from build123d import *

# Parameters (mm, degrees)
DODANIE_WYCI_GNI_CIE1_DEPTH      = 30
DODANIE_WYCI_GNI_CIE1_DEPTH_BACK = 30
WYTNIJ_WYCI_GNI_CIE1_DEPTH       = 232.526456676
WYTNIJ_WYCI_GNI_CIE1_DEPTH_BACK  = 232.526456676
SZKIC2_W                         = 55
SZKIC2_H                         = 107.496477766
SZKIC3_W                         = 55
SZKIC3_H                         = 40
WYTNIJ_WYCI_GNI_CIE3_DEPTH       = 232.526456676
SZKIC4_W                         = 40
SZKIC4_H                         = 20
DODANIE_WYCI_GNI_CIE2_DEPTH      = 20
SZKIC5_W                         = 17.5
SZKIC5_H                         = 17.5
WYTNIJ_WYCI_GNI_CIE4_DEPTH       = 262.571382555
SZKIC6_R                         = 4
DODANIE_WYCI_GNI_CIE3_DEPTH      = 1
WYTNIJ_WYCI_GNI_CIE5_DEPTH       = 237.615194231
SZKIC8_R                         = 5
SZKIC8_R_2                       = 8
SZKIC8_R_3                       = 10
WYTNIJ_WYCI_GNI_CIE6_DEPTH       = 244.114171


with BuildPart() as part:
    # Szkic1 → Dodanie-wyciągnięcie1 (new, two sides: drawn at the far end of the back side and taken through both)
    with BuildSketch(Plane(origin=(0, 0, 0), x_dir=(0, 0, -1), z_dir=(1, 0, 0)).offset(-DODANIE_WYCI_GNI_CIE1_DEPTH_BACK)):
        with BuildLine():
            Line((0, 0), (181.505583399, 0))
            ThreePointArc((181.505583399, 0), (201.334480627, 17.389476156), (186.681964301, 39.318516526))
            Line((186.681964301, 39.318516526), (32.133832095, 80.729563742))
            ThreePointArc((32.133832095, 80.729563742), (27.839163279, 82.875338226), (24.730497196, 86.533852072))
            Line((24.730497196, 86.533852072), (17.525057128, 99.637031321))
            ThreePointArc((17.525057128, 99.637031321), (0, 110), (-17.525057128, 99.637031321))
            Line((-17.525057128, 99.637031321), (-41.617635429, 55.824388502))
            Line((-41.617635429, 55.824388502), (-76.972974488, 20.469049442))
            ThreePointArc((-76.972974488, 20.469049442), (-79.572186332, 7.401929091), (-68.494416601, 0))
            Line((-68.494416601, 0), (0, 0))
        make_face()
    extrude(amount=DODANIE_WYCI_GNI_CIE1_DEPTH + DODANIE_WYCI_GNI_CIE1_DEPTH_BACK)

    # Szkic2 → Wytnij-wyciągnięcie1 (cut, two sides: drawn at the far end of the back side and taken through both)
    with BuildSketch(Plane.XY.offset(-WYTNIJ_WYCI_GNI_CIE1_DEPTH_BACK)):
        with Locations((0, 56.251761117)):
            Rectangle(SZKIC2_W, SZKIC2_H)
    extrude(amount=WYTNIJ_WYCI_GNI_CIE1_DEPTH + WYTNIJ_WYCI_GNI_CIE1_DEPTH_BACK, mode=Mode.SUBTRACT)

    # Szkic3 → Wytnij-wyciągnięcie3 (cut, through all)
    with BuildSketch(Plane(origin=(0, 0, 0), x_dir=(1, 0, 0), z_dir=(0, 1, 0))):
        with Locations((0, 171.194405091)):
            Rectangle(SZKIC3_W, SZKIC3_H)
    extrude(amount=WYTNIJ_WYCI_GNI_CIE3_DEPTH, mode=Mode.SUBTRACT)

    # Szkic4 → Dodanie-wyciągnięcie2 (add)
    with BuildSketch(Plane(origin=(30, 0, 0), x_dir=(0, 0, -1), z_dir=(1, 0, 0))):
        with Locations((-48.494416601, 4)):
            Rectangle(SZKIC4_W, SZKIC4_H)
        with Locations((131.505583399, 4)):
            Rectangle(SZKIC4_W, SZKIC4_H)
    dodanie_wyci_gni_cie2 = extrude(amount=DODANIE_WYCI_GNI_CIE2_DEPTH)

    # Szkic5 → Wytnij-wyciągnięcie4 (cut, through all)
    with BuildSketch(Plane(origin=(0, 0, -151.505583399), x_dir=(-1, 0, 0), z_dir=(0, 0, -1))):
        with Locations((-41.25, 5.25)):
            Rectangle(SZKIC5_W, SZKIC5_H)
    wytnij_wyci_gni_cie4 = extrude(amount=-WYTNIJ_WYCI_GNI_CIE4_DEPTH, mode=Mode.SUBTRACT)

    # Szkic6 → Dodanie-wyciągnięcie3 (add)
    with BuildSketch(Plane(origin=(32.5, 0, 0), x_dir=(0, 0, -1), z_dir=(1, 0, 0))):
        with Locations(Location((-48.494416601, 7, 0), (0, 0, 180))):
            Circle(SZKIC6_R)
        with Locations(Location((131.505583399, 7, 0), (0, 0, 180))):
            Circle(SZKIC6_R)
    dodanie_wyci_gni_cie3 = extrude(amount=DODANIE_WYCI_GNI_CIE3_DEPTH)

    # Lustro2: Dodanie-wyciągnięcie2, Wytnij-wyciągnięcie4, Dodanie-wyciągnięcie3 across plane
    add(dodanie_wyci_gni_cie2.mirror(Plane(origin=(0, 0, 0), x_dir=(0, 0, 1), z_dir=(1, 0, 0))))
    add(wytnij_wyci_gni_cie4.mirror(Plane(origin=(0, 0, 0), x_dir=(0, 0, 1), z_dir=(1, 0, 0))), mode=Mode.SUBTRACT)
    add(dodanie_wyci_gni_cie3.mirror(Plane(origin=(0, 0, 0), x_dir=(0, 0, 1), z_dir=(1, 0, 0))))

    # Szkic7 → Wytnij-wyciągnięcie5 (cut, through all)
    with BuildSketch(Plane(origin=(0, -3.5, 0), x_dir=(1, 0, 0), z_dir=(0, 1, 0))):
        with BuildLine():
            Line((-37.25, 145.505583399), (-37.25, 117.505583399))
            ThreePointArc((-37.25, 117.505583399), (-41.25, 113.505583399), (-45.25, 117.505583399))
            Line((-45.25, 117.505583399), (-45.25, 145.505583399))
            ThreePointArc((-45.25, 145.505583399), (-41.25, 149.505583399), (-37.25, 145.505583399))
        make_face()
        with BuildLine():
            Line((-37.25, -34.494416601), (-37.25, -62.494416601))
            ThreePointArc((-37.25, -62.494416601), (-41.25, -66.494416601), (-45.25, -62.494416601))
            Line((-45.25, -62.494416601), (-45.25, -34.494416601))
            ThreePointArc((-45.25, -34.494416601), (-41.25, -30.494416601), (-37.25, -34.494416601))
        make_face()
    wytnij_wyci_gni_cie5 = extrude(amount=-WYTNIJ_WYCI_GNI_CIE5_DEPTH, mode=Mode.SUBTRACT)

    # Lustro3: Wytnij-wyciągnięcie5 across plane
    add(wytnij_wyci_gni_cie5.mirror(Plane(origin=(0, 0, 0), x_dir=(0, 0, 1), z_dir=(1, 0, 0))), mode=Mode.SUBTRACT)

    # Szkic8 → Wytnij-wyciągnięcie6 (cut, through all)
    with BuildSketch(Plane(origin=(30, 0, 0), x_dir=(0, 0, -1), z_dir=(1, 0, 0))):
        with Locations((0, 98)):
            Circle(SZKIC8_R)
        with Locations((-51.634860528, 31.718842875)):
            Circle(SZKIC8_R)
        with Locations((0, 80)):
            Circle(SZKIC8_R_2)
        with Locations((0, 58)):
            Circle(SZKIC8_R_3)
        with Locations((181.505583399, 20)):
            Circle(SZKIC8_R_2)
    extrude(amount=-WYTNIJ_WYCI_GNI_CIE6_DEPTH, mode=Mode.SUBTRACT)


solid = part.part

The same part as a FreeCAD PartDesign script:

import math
import FreeCAD as App
import Part
import Sketcher
from FreeCAD import Vector
Q = App.Units.Quantity


def add_polygon(sketch, points):
    """Adds a closed chain of lines whose ends are joined by coincident constraints."""
    first, n = sketch.GeometryCount, len(points)
    for a, b in zip(points, points[1:] + points[:1]):
        sketch.addGeometry(Part.LineSegment(App.Vector(*a, 0), App.Vector(*b, 0)), False)
    for i in range(n):
        sketch.addConstraint(Sketcher.Constraint("Coincident", first + i, 2, first + (i + 1) % n, 1))

doc = App.newDocument("Part")
params = doc.addObject("Spreadsheet::Sheet", "Params")
for row, (alias, value) in enumerate([
    ("sketch1_radius", "20 mm"),
    ("sketch1_height", "250 mm"),
    ("sketch1_length", "160 mm"),
    ("sketch1_length2", "50 mm"),
    ("pad1_length", "30 mm"),
    ("pad1_length2", "30 mm"),
    ("sketch2_width", "55 mm"),
    ("sketch3_width", "55 mm"),
    ("sketch3_height", "40 mm"),
    ("sketch4_width", "20 mm"),
    ("sketch4_height", "40 mm"),
    ("pad2_length", "20 mm"),
    ("sketch5_width", "17.5 mm"),
    ("sketch6_diameter", "8 mm"),
    ("pad3_length", "1 mm"),
    ("sketch7_radius", "4 mm"),
    ("sketch7_height", "28 mm"),
    ("sketch8_diameter", "10 mm"),
    ("sketch8_diameter2", "16 mm"),
    ("sketch8_diameter3", "20 mm"),
], start=1):
    params.set(f"A{row}", alias)
    params.set(f"B{row}", "=" + value)
    params.setAlias(f"B{row}", alias)

body = doc.addObject("PartDesign::Body", "Body")

# Sketch on YZ plane
sketch1 = body.newObject("Sketcher::SketchObject", "Sketch")
sketch1.AttachmentSupport = (doc.getObject("YZ_Plane"), [""])
sketch1.MapMode = "FlatFace"
sketch1.addGeometry([
    Part.ArcOfCircle(Part.Circle(Vector(20, -182, 0), Vector(0, 0, 1), 20), math.radians(180), math.radians(345)),  # 0
    Part.LineSegment(Vector(39, -187, 0), Vector(81, -32, 0)),  # 1
    Part.ArcOfCircle(Part.Circle(Vector(92, -35, 0), Vector(0, 0, 1), 12), math.radians(119), math.radians(165)),  # 2
    Part.LineSegment(Vector(87, -25, 0), Vector(100, -18, 0)),  # 3
    Part.ArcOfCircle(Part.Circle(Vector(90, 0, 0), Vector(0, 0, 1), 20), math.radians(-61), math.radians(61)),  # 4
    Part.LineSegment(Vector(100, 18, 0), Vector(56, 42, 0)),  # 5
    Part.LineSegment(Vector(56, 42, 0), Vector(20, 77, 0)),  # 6
    Part.ArcOfCircle(Part.Circle(Vector(12, 68, 0), Vector(0, 0, 1), 12), math.radians(45), math.radians(180)),  # 7
    Part.LineSegment(Vector(0, 68, 0), Vector(0, -182, 0)),  # 8
], False)
sketch1.addConstraint([
    Sketcher.Constraint("Tangent", 0, 2, 1, 1),
    Sketcher.Constraint("Tangent", 1, 2, 2, 2),
    Sketcher.Constraint("Tangent", 2, 1, 3, 1),
    Sketcher.Constraint("Tangent", 3, 2, 4, 1),
    Sketcher.Constraint("Tangent", 4, 2, 5, 1),
    Sketcher.Constraint("Coincident", 5, 2, 6, 1),
    Sketcher.Constraint("Tangent", 6, 2, 7, 1),
    Sketcher.Constraint("Tangent", 7, 2, 8, 1),
    Sketcher.Constraint("Tangent", 8, 2, 0, 1),
    Sketcher.Constraint("Vertical", 8),
    Sketcher.Constraint("Equal", 0, 4),
    Sketcher.Constraint("Equal", 2, 7),
    Sketcher.Constraint("Symmetric", 3, 2, 4, 2, -1),
    Sketcher.Constraint("PointOnObject", 7, 2, -2),
    Sketcher.Constraint("Equal", 5, 6),
    Sketcher.Constraint("Radius", 0, 20.0),
    Sketcher.Constraint("DistanceY", 8, 2, 8, 1, 250.0),
    Sketcher.Constraint("Angle", 1, Q("75 deg")),
    Sketcher.Constraint("Angle", 6, Q("135 deg")),
    Sketcher.Constraint("Distance", 1, 160.0),
    Sketcher.Constraint("Distance", 5, 50.0),
    Sketcher.Constraint("DistanceX", -1, 1, 4, 3, 90.0),
])
sketch1.setExpression("Constraints[15]", "Params.sketch1_radius")
sketch1.setExpression("Constraints[16]", "Params.sketch1_height")
sketch1.setExpression("Constraints[19]", "Params.sketch1_length")
sketch1.setExpression("Constraints[20]", "Params.sketch1_length2")
pad1 = body.newObject("PartDesign::Pad", "Pad")
pad1.Profile = sketch1
pad1.Type = "TwoLengths"
pad1.setExpression("Length", "Params.pad1_length")
pad1.setExpression("Length2", "Params.pad1_length2")

# Sketch on XY plane
sketch2 = body.newObject("Sketcher::SketchObject", "Sketch001")
sketch2.AttachmentSupport = (doc.getObject("XY_Plane"), [""])
sketch2.MapMode = "FlatFace"
add_polygon(sketch2, [(-28, 110), (-28, 3), (28, 3), (28, 110)])  # lines 0-3
sketch2.addConstraint([
    Sketcher.Constraint("Vertical", 0),
    Sketcher.Constraint("Horizontal", 1),
    Sketcher.Constraint("Vertical", 2),
    Sketcher.Constraint("Horizontal", 3),
    Sketcher.Constraint("DistanceX", 1, 1, 1, 2, 55.0),
    Sketcher.Constraint("DistanceY", -1, 1, 2, 2, 110.0),
    Sketcher.Constraint("DistanceX", 0, 2, -1, 1, 27.5),
    Sketcher.Constraint("DistanceY", 0, 2, 0, 1, 107.496478),
])
sketch2.setExpression("Constraints[8]", "Params.sketch2_width")
pocket1 = body.newObject("PartDesign::Pocket", "Pocket")
pocket1.Profile = sketch2
pocket1.Type = "ThroughAll"
pocket1.Midplane = True

# Sketch on XZ plane
sketch3 = body.newObject("Sketcher::SketchObject", "Sketch002")
sketch3.AttachmentSupport = (doc.getObject("XZ_Plane"), [""])
sketch3.MapMode = "FlatFace"
add_polygon(sketch3, [(-28, -191), (-28, -151), (28, -151), (28, -191)])  # lines 0-3
sketch3.addConstraint([
    Sketcher.Constraint("Vertical", 0),
    Sketcher.Constraint("Horizontal", 1),
    Sketcher.Constraint("Vertical", 2),
    Sketcher.Constraint("Horizontal", 3),
    Sketcher.Constraint("DistanceX", 1, 1, 1, 2, 55.0),
    Sketcher.Constraint("DistanceY", 0, 1, 0, 2, 40.0),
    Sketcher.Constraint("DistanceX", 0, 2, -1, 1, 27.5),
    Sketcher.Constraint("DistanceY", 0, 2, -1, 1, 151.194405),
])
sketch3.setExpression("Constraints[8]", "Params.sketch3_width")
sketch3.setExpression("Constraints[9]", "Params.sketch3_height")
pocket2 = body.newObject("PartDesign::Pocket", "Pocket001")
pocket2.Profile = sketch3
pocket2.Type = "ThroughAll"

# Sketch on YZ plane
sketch4 = body.newObject("Sketcher::SketchObject", "Sketch003")
sketch4.AttachmentSupport = (doc.getObject("YZ_Plane"), [""])
sketch4.MapMode = "FlatFace"
sketch4.AttachmentOffset = App.Placement(Vector(0, 0, 30), App.Rotation())
add_polygon(sketch4, [(14, 68), (-6, 68), (-6, 28), (14, 28)])  # lines 0-3
add_polygon(sketch4, [(14, -112), (-6, -112), (-6, -152), (14, -152)])  # lines 4-7
sketch4.addConstraint([
    Sketcher.Constraint("Horizontal", 0),
    Sketcher.Constraint("Vertical", 1),
    Sketcher.Constraint("Horizontal", 2),
    Sketcher.Constraint("Vertical", 3),
    Sketcher.Constraint("Horizontal", 4),
    Sketcher.Constraint("Vertical", 5),
    Sketcher.Constraint("Horizontal", 6),
    Sketcher.Constraint("Vertical", 7),
    Sketcher.Constraint("Vertical", 1, 2, 4, 2),
    Sketcher.Constraint("Vertical", 3, 2, 6, 2),
    Sketcher.Constraint("Equal", 3, 5),
    Sketcher.Constraint("DistanceX", 0, 2, 0, 1, 20.0),
    Sketcher.Constraint("DistanceY", 1, 2, 1, 1, 40.0),
    Sketcher.Constraint("DistanceX", 0, 2, -1, 1, 6.0),
    Sketcher.Constraint("DistanceY", 4, 2, 1, 2, 140.0),
    Sketcher.Constraint("DistanceY", -1, 1, 0, 2, 68.494417),
])
sketch4.setExpression("Constraints[19]", "Params.sketch4_width")
sketch4.setExpression("Constraints[20]", "Params.sketch4_height")
pad2 = body.newObject("PartDesign::Pad", "Pad001")
pad2.Profile = sketch4
pad2.setExpression("Length", "Params.pad2_length")

# Sketch on XY plane
sketch5 = body.newObject("Sketcher::SketchObject", "Sketch004")
sketch5.AttachmentSupport = (doc.getObject("XY_Plane"), [""])
sketch5.MapMode = "FlatFace"
sketch5.AttachmentOffset = App.Placement(Vector(0, 0, -151.505583), App.Rotation())
add_polygon(sketch5, [(50, 14), (50, -4), (32, -4), (32, 14)])  # lines 0-3
sketch5.addConstraint([
    Sketcher.Constraint("Vertical", 0),
    Sketcher.Constraint("Horizontal", 1),
    Sketcher.Constraint("Vertical", 2),
    Sketcher.Constraint("Horizontal", 3),
    Sketcher.Constraint("Equal", 3, 0),
    Sketcher.Constraint("DistanceX", 1, 2, 1, 1, 17.5),
    Sketcher.Constraint("DistanceX", -1, 1, 0, 2, 50.0),
    Sketcher.Constraint("DistanceY", -1, 1, 2, 2, 14.0),
])
sketch5.setExpression("Constraints[9]", "Params.sketch5_width")
pocket3 = body.newObject("PartDesign::Pocket", "Pocket002")
pocket3.Profile = sketch5
pocket3.Type = "ThroughAll"
pocket3.Reversed = True

# Sketch on YZ plane
sketch6 = body.newObject("Sketcher::SketchObject", "Sketch005")
sketch6.AttachmentSupport = (doc.getObject("YZ_Plane"), [""])
sketch6.MapMode = "FlatFace"
sketch6.AttachmentOffset = App.Placement(Vector(0, 0, 32.5), App.Rotation())
sketch6.addGeometry([
    Part.Circle(Vector(7, 48.5, 0), Vector(0, 0, 1), 4),
    Part.Circle(Vector(7, -131.5, 0), Vector(0, 0, 1), 4),
], False)
sketch6.addConstraint([
    Sketcher.Constraint("Equal", 0, 1),
    Sketcher.Constraint("Vertical", 0, 3, 1, 3),
    Sketcher.Constraint("Diameter", 0, 8.0),
    Sketcher.Constraint("DistanceX", -1, 1, 0, 3, 7.0),
    Sketcher.Constraint("DistanceY", 1, 3, 0, 3, 180.0),
    Sketcher.Constraint("DistanceY", -1, 1, 0, 3, 48.494417),
])
sketch6.setExpression("Constraints[2]", "Params.sketch6_diameter")
pad3 = body.newObject("PartDesign::Pad", "Pad002")
pad3.Profile = sketch6
pad3.setExpression("Length", "Params.pad3_length")
doc.recompute()

mirrored = body.newObject("PartDesign::Mirrored", "Mirrored")
mirrored.Originals = [pad2, pocket3, pad3]
mirrored.MirrorPlane = (doc.getObject("YZ_Plane"), [""])
body.Tip = mirrored

# Sketch on XZ plane
sketch7 = body.newObject("Sketcher::SketchObject", "Sketch006")
sketch7.AttachmentSupport = (doc.getObject("XZ_Plane"), [""])
sketch7.MapMode = "FlatFace"
sketch7.AttachmentOffset = App.Placement(Vector(0, 0, 3.5), App.Rotation())
sketch7.addGeometry([
    Part.LineSegment(Vector(-37.2, -117.5, 0), Vector(-37.2, -145.5, 0)),  # 0
    Part.ArcOfCircle(Part.Circle(Vector(-41.2, -145.5, 0), Vector(0, 0, 1), 4), math.radians(180), math.radians(360)),  # 1
    Part.LineSegment(Vector(-45.2, -145.5, 0), Vector(-45.2, -117.5, 0)),  # 2
    Part.ArcOfCircle(Part.Circle(Vector(-41.2, -117.5, 0), Vector(0, 0, 1), 4), math.radians(0), math.radians(180)),  # 3
    Part.LineSegment(Vector(-37.2, 62.5, 0), Vector(-37.2, 34.5, 0)),  # 4
    Part.ArcOfCircle(Part.Circle(Vector(-41.2, 34.5, 0), Vector(0, 0, 1), 4), math.radians(180), math.radians(360)),  # 5
    Part.LineSegment(Vector(-45.2, 34.5, 0), Vector(-45.2, 62.5, 0)),  # 6
    Part.ArcOfCircle(Part.Circle(Vector(-41.2, 62.5, 0), Vector(0, 0, 1), 4), math.radians(0), math.radians(180)),  # 7
], False)
sketch7.addConstraint([
    Sketcher.Constraint("Tangent", 0, 2, 1, 2),
    Sketcher.Constraint("Tangent", 1, 1, 2, 1),
    Sketcher.Constraint("Tangent", 2, 2, 3, 2),
    Sketcher.Constraint("Tangent", 3, 1, 0, 1),
    Sketcher.Constraint("Tangent", 4, 2, 5, 2),
    Sketcher.Constraint("Tangent", 5, 1, 6, 1),
    Sketcher.Constraint("Tangent", 6, 2, 7, 2),
    Sketcher.Constraint("Tangent", 7, 1, 4, 1),
    Sketcher.Constraint("Vertical", 0),
    Sketcher.Constraint("Vertical", 2),
    Sketcher.Constraint("Vertical", 4),
    Sketcher.Constraint("Vertical", 6),
    Sketcher.Constraint("Equal", 3, 5),
    Sketcher.Constraint("Vertical", 3, 3, 5, 3),
    Sketcher.Constraint("Equal", 2, 4),
    Sketcher.Constraint("Radius", 1, 4.0),
    Sketcher.Constraint("DistanceY", 0, 2, 0, 1, 28.0),
    Sketcher.Constraint("DistanceY", 3, 3, 5, 3, 152.0),
    Sketcher.Constraint("DistanceX", 1, 3, -1, 1, 41.25),
    Sketcher.Constraint("DistanceY", 1, 3, -1, 1, 145.505583),
])
sketch7.setExpression("Constraints[15]", "Params.sketch7_radius")
sketch7.setExpression("Constraints[16]", "Params.sketch7_height")
pocket4 = body.newObject("PartDesign::Pocket", "Pocket003")
pocket4.Profile = sketch7
pocket4.Type = "ThroughAll"
pocket4.Reversed = True
doc.recompute()

mirrored2 = body.newObject("PartDesign::Mirrored", "Mirrored001")
mirrored2.Originals = [pocket4]
mirrored2.MirrorPlane = (doc.getObject("YZ_Plane"), [""])
body.Tip = mirrored2

# Sketch on YZ plane
sketch8 = body.newObject("Sketcher::SketchObject", "Sketch007")
sketch8.AttachmentSupport = (doc.getObject("YZ_Plane"), [""])
sketch8.MapMode = "FlatFace"
sketch8.AttachmentOffset = App.Placement(Vector(0, 0, 30), App.Rotation())
sketch8.addGeometry([
    Part.Circle(Vector(98, 0, 0), Vector(0, 0, 1), 5),  # 0
    Part.Circle(Vector(32, 52, 0), Vector(0, 0, 1), 5),  # 1
    Part.Circle(Vector(80, 0, 0), Vector(0, 0, 1), 8),  # 2
    Part.Circle(Vector(58, 0, 0), Vector(0, 0, 1), 10),  # 3
    Part.Circle(Vector(20, -182, 0), Vector(0, 0, 1), 8),  # 4
], False)
sketch8.addConstraint([
    Sketcher.Constraint("Equal", 0, 1),
    Sketcher.Constraint("Equal", 2, 4),
    Sketcher.Constraint("PointOnObject", 0, 3, -1),
    Sketcher.Constraint("PointOnObject", 2, 3, -1),
    Sketcher.Constraint("PointOnObject", 3, 3, -1),
    Sketcher.Constraint("Diameter", 0, 10.0),
    Sketcher.Constraint("Diameter", 2, 16.0),
    Sketcher.Constraint("Diameter", 3, 20.0),
    Sketcher.Constraint("DistanceX", -1, 1, 0, 3, 98.0),
    Sketcher.Constraint("DistanceX", -1, 1, 2, 3, 80.0),
    Sketcher.Constraint("DistanceX", -1, 1, 3, 3, 58.0),
    Sketcher.Constraint("DistanceX", -1, 1, 4, 3, 20.0),
    Sketcher.Constraint("DistanceY", -1, 1, 1, 3, 51.634861),
    Sketcher.Constraint("DistanceX", -1, 1, 1, 3, 31.718843),
    Sketcher.Constraint("DistanceY", 4, 3, -1, 1, 181.505583),
])
sketch8.setExpression("Constraints[5]", "Params.sketch8_diameter")
sketch8.setExpression("Constraints[6]", "Params.sketch8_diameter2")
sketch8.setExpression("Constraints[7]", "Params.sketch8_diameter3")
pocket5 = body.newObject("PartDesign::Pocket", "Pocket004")
pocket5.Profile = sketch8
pocket5.Type = "ThroughAll"

doc.recompute()
